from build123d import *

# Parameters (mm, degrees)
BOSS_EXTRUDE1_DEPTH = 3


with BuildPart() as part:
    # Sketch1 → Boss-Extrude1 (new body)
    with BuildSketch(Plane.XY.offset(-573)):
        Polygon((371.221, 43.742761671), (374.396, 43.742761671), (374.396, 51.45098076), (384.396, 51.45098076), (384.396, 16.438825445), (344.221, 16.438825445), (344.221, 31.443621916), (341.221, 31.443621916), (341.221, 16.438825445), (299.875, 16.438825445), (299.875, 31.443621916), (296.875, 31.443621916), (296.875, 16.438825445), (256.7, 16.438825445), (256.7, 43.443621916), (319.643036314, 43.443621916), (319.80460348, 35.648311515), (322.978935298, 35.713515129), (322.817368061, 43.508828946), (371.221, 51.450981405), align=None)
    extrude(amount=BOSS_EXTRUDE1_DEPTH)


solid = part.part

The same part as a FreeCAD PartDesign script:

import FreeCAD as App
import Part
import Sketcher
Q = App.Units.Quantity

doc = App.newDocument("Part")
body = doc.addObject("PartDesign::Body", "Body")

# Sketch on XY plane
sketch1 = body.newObject("Sketcher::SketchObject", "Sketch")
sketch1.AttachmentSupport = (doc.getObject("XY_Plane"), [""])
sketch1.MapMode = "FlatFace"
sketch1.AttachmentOffset = App.Placement(App.Vector(0, 0, -573), App.Rotation())
sketch1.addGeometry([
    Part.LineSegment(App.Vector(374.396, 43.742762, 0), App.Vector(371.221, 43.742762, 0)),  # 0
    Part.LineSegment(App.Vector(371.221, 43.742762, 0), App.Vector(371.221, 51.450981, 0)),  # 1
    Part.LineSegment(App.Vector(371.221, 51.450981, 0), App.Vector(322.817368, 43.508829, 0)),  # 2
    Part.LineSegment(App.Vector(322.817368, 43.508829, 0), App.Vector(322.978935, 35.713515, 0)),  # 3
    Part.LineSegment(App.Vector(322.978935, 35.713515, 0), App.Vector(319.804603, 35.648312, 0)),  # 4
    Part.LineSegment(App.Vector(319.804603, 35.648312, 0), App.Vector(319.643036, 43.443622, 0)),  # 5
    Part.LineSegment(App.Vector(319.643036, 43.443622, 0), App.Vector(256.7, 43.443622, 0)),  # 6
    Part.LineSegment(App.Vector(256.7, 43.443622, 0), App.Vector(256.7, 16.438825, 0)),  # 7
    Part.LineSegment(App.Vector(256.7, 16.438825, 0), App.Vector(296.875, 16.438825, 0)),  # 8
    Part.LineSegment(App.Vector(296.875, 16.438825, 0), App.Vector(296.875, 31.443622, 0)),  # 9
    Part.LineSegment(App.Vector(296.875, 31.443622, 0), App.Vector(299.875, 31.443622, 0)),  # 10
    Part.LineSegment(App.Vector(299.875, 31.443622, 0), App.Vector(299.875, 16.438825, 0)),  # 11
    Part.LineSegment(App.Vector(299.875, 16.438825, 0), App.Vector(341.221, 16.438825, 0)),  # 12
    Part.LineSegment(App.Vector(341.221, 16.438825, 0), App.Vector(341.221, 31.443622, 0)),  # 13
    Part.LineSegment(App.Vector(341.221, 31.443622, 0), App.Vector(344.221, 31.443622, 0)),  # 14
    Part.LineSegment(App.Vector(344.221, 31.443622, 0), App.Vector(344.221, 16.438825, 0)),  # 15
    Part.LineSegment(App.Vector(344.221, 16.438825, 0), App.Vector(384.396, 16.438825, 0)),  # 16
    Part.LineSegment(App.Vector(384.396, 16.438825, 0), App.Vector(384.396, 51.450981, 0)),  # 17
    Part.LineSegment(App.Vector(384.396, 51.450981, 0), App.Vector(374.396, 51.450981, 0)),  # 18
    Part.LineSegment(App.Vector(374.396, 51.450981, 0), App.Vector(374.396, 43.742762, 0)),  # 19
], False)
sketch1.addConstraint([
    Sketcher.Constraint("Coincident", 0, 2, 1, 1),
    Sketcher.Constraint("Coincident", 1, 2, 2, 1),
    Sketcher.Constraint("Coincident", 2, 2, 3, 1),
    Sketcher.Constraint("Coincident", 3, 2, 4, 1),
    Sketcher.Constraint("Coincident", 4, 2, 5, 1),
    Sketcher.Constraint("Coincident", 5, 2, 6, 1),
    Sketcher.Constraint("Coincident", 6, 2, 7, 1),
    Sketcher.Constraint("Coincident", 7, 2, 8, 1),
    Sketcher.Constraint("Coincident", 8, 2, 9, 1),
    Sketcher.Constraint("Coincident", 9, 2, 10, 1),
    Sketcher.Constraint("Coincident", 10, 2, 11, 1),
    Sketcher.Constraint("Coincident", 11, 2, 12, 1),
    Sketcher.Constraint("Coincident", 12, 2, 13, 1),
    Sketcher.Constraint("Coincident", 13, 2, 14, 1),
    Sketcher.Constraint("Coincident", 14, 2, 15, 1),
    Sketcher.Constraint("Coincident", 15, 2, 16, 1),
    Sketcher.Constraint("Coincident", 16, 2, 17, 1),
    Sketcher.Constraint("Coincident", 17, 2, 18, 1),
    Sketcher.Constraint("Coincident", 18, 2, 19, 1),
    Sketcher.Constraint("Coincident", 19, 2, 0, 1),
    Sketcher.Constraint("Horizontal", 0),
    Sketcher.Constraint("Vertical", 1),
    Sketcher.Constraint("Horizontal", 6),
    Sketcher.Constraint("Vertical", 7),
    Sketcher.Constraint("Horizontal", 8),
    Sketcher.Constraint("Vertical", 9),
    Sketcher.Constraint("Horizontal", 10),
    Sketcher.Constraint("Vertical", 11),
    Sketcher.Constraint("Horizontal", 12),
    Sketcher.Constraint("Vertical", 13),
    Sketcher.Constraint("Horizontal", 14),
    Sketcher.Constraint("Vertical", 15),
    Sketcher.Constraint("Horizontal", 16),
    Sketcher.Constraint("Vertical", 17),
    Sketcher.Constraint("Horizontal", 18),
    Sketcher.Constraint("Vertical", 19),
    Sketcher.Constraint("DistanceX", 10, 1, 10, 2, Q("3 mm")),
    Sketcher.Constraint("DistanceX", 14, 1, 14, 2, Q("3 mm")),
    Sketcher.Constraint("DistanceX", 18, 2, 18, 1, Q("10 mm")),
    Sketcher.Constraint("DistanceY", 9, 2, 5, 2, Q("12 mm")),
    Sketcher.Constraint("DistanceX", 12, 2, 0, 2, Q("30 mm")),
    Sketcher.Constraint("DistanceY", 13, 2, 5, 2, Q("12 mm")),
    Sketcher.Constraint("DistanceX", -1, 1, 6, 2, Q("256.7 mm")),
    Sketcher.Constraint("DistanceX", 0, 2, 0, 1, Q("3.175 mm")),
    Sketcher.Constraint("DistanceX", 8, 1, 8, 2, Q("40.175 mm")),
    Sketcher.Constraint("DistanceX", 12, 1, 12, 2, Q("41.346 mm")),
    Sketcher.Constraint("Distance", 4, Q("3.175001 mm")),
    Sketcher.Constraint("DistanceY", 1, 1, 1, 2, Q("7.70822 mm")),
    Sketcher.Constraint("DistanceY", 19, 2, 19, 1, Q("7.708219 mm")),
    Sketcher.Constraint("DistanceX", 5, 2, 3, 2, Q("3.335899 mm")),
    Sketcher.Constraint("DistanceX", 6, 2, 6, 1, Q("62.943036 mm")),
    Sketcher.Constraint("DistanceY", 7, 2, 7, 1, Q("27.004796 mm")),
    Sketcher.Constraint("DistanceY", 11, 2, 11, 1, Q("15.004796 mm")),
    Sketcher.Constraint("DistanceY", 15, 2, 15, 1, Q("15.004796 mm")),
    Sketcher.Constraint("DistanceY", 17, 1, 17, 2, Q("35.012155 mm")),
    Sketcher.Constraint("DistanceY", -1, 1, 0, 2, Q("43.742762 mm")),
    Sketcher.Constraint("DistanceX", -1, 1, 2, 2, Q("322.817368 mm")),
    Sketcher.Constraint("DistanceY", -1, 1, 2, 2, Q("43.508829 mm")),
    Sketcher.Constraint("DistanceY", -1, 1, 4, 2, Q("35.648312 mm")),
    Sketcher.Constraint("DistanceX", 4, 2, 3, 2, Q("3.174332 mm")),
])
pad1 = body.newObject("PartDesign::Pad", "Pad")
pad1.Profile = sketch1
pad1.Length = 3

doc.recompute()
